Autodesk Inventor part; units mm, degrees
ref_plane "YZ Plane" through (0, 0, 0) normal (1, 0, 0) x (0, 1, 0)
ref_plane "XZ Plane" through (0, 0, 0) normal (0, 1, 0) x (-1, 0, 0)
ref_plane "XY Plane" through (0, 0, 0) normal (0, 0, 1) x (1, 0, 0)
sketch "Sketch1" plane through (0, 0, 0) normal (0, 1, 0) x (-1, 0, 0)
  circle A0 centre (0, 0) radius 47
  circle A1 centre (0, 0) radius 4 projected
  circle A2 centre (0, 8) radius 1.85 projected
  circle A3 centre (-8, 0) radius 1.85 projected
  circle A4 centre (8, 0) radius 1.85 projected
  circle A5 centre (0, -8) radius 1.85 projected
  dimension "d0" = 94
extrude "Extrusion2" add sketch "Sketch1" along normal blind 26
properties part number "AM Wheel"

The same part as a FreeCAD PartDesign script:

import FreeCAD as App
import Part
import Sketcher
from FreeCAD import Vector

doc = App.newDocument("Part")
body = doc.addObject("PartDesign::Body", "Body")

# Sketch on XZ plane
sketch1 = doc.addObject("Sketcher::SketchObject", "Sketch")
body.addObject(sketch1)
sketch1.AttachmentSupport = (doc.XZ_Plane, [""])
sketch1.MapMode = "FlatFace"
sketch1.addGeometry(Part.Circle(Vector(0, 0, 0), Vector(0, 0, 1), 47), False)
sketch1.addGeometry(Part.Circle(Vector(0, -8, 0), Vector(0, 0, 1), 1.85), False)
sketch1.addGeometry(Part.Circle(Vector(8, 0, 0), Vector(0, 0, 1), 1.85), False)
sketch1.addGeometry(Part.Circle(Vector(0, 0, 0), Vector(0, 0, 1), 4), False)
sketch1.addGeometry(Part.Circle(Vector(-8, 0, 0), Vector(0, 0, 1), 1.85), False)
sketch1.addGeometry(Part.Circle(Vector(0, 8, 0), Vector(0, 0, 1), 1.85), False)
sketch1.addConstraint(Sketcher.Constraint("Coincident", 0, 3, -1, 1))
sketch1.addConstraint(Sketcher.Constraint("Coincident", 3, 3, -1, 1))
sketch1.addConstraint(Sketcher.Constraint("Equal", 1, 2))
sketch1.addConstraint(Sketcher.Constraint("Equal", 2, 4))
sketch1.addConstraint(Sketcher.Constraint("Equal", 4, 5))
sketch1.addConstraint(Sketcher.Constraint("Symmetric", 2, 3, 4, 3, -1, 1))
sketch1.addConstraint(Sketcher.Constraint("Symmetric", 1, 3, 5, 3, -1, 1))
sketch1.addConstraint(Sketcher.Constraint("PointOnObject", 1, 3, -2))
sketch1.addConstraint(Sketcher.Constraint("PointOnObject", 2, 3, -1))
sketch1.addConstraint(Sketcher.Constraint("Diameter", 0, 94.0))
sketch1.addConstraint(Sketcher.Constraint("Diameter", 3, 8.0))
sketch1.addConstraint(Sketcher.Constraint("Diameter", 1, 3.7))
sketch1.addConstraint(Sketcher.Constraint("DistanceY", 1, 3, -1, 1, 8.0))
sketch1.addConstraint(Sketcher.Constraint("DistanceX", -1, 1, 2, 3, 8.0))
pad1 = doc.addObject("PartDesign::Pad", "Pad")
body.addObject(pad1)
pad1.Profile = sketch1
pad1.Length = 26
pad1.Reversed = True

doc.recompute()
